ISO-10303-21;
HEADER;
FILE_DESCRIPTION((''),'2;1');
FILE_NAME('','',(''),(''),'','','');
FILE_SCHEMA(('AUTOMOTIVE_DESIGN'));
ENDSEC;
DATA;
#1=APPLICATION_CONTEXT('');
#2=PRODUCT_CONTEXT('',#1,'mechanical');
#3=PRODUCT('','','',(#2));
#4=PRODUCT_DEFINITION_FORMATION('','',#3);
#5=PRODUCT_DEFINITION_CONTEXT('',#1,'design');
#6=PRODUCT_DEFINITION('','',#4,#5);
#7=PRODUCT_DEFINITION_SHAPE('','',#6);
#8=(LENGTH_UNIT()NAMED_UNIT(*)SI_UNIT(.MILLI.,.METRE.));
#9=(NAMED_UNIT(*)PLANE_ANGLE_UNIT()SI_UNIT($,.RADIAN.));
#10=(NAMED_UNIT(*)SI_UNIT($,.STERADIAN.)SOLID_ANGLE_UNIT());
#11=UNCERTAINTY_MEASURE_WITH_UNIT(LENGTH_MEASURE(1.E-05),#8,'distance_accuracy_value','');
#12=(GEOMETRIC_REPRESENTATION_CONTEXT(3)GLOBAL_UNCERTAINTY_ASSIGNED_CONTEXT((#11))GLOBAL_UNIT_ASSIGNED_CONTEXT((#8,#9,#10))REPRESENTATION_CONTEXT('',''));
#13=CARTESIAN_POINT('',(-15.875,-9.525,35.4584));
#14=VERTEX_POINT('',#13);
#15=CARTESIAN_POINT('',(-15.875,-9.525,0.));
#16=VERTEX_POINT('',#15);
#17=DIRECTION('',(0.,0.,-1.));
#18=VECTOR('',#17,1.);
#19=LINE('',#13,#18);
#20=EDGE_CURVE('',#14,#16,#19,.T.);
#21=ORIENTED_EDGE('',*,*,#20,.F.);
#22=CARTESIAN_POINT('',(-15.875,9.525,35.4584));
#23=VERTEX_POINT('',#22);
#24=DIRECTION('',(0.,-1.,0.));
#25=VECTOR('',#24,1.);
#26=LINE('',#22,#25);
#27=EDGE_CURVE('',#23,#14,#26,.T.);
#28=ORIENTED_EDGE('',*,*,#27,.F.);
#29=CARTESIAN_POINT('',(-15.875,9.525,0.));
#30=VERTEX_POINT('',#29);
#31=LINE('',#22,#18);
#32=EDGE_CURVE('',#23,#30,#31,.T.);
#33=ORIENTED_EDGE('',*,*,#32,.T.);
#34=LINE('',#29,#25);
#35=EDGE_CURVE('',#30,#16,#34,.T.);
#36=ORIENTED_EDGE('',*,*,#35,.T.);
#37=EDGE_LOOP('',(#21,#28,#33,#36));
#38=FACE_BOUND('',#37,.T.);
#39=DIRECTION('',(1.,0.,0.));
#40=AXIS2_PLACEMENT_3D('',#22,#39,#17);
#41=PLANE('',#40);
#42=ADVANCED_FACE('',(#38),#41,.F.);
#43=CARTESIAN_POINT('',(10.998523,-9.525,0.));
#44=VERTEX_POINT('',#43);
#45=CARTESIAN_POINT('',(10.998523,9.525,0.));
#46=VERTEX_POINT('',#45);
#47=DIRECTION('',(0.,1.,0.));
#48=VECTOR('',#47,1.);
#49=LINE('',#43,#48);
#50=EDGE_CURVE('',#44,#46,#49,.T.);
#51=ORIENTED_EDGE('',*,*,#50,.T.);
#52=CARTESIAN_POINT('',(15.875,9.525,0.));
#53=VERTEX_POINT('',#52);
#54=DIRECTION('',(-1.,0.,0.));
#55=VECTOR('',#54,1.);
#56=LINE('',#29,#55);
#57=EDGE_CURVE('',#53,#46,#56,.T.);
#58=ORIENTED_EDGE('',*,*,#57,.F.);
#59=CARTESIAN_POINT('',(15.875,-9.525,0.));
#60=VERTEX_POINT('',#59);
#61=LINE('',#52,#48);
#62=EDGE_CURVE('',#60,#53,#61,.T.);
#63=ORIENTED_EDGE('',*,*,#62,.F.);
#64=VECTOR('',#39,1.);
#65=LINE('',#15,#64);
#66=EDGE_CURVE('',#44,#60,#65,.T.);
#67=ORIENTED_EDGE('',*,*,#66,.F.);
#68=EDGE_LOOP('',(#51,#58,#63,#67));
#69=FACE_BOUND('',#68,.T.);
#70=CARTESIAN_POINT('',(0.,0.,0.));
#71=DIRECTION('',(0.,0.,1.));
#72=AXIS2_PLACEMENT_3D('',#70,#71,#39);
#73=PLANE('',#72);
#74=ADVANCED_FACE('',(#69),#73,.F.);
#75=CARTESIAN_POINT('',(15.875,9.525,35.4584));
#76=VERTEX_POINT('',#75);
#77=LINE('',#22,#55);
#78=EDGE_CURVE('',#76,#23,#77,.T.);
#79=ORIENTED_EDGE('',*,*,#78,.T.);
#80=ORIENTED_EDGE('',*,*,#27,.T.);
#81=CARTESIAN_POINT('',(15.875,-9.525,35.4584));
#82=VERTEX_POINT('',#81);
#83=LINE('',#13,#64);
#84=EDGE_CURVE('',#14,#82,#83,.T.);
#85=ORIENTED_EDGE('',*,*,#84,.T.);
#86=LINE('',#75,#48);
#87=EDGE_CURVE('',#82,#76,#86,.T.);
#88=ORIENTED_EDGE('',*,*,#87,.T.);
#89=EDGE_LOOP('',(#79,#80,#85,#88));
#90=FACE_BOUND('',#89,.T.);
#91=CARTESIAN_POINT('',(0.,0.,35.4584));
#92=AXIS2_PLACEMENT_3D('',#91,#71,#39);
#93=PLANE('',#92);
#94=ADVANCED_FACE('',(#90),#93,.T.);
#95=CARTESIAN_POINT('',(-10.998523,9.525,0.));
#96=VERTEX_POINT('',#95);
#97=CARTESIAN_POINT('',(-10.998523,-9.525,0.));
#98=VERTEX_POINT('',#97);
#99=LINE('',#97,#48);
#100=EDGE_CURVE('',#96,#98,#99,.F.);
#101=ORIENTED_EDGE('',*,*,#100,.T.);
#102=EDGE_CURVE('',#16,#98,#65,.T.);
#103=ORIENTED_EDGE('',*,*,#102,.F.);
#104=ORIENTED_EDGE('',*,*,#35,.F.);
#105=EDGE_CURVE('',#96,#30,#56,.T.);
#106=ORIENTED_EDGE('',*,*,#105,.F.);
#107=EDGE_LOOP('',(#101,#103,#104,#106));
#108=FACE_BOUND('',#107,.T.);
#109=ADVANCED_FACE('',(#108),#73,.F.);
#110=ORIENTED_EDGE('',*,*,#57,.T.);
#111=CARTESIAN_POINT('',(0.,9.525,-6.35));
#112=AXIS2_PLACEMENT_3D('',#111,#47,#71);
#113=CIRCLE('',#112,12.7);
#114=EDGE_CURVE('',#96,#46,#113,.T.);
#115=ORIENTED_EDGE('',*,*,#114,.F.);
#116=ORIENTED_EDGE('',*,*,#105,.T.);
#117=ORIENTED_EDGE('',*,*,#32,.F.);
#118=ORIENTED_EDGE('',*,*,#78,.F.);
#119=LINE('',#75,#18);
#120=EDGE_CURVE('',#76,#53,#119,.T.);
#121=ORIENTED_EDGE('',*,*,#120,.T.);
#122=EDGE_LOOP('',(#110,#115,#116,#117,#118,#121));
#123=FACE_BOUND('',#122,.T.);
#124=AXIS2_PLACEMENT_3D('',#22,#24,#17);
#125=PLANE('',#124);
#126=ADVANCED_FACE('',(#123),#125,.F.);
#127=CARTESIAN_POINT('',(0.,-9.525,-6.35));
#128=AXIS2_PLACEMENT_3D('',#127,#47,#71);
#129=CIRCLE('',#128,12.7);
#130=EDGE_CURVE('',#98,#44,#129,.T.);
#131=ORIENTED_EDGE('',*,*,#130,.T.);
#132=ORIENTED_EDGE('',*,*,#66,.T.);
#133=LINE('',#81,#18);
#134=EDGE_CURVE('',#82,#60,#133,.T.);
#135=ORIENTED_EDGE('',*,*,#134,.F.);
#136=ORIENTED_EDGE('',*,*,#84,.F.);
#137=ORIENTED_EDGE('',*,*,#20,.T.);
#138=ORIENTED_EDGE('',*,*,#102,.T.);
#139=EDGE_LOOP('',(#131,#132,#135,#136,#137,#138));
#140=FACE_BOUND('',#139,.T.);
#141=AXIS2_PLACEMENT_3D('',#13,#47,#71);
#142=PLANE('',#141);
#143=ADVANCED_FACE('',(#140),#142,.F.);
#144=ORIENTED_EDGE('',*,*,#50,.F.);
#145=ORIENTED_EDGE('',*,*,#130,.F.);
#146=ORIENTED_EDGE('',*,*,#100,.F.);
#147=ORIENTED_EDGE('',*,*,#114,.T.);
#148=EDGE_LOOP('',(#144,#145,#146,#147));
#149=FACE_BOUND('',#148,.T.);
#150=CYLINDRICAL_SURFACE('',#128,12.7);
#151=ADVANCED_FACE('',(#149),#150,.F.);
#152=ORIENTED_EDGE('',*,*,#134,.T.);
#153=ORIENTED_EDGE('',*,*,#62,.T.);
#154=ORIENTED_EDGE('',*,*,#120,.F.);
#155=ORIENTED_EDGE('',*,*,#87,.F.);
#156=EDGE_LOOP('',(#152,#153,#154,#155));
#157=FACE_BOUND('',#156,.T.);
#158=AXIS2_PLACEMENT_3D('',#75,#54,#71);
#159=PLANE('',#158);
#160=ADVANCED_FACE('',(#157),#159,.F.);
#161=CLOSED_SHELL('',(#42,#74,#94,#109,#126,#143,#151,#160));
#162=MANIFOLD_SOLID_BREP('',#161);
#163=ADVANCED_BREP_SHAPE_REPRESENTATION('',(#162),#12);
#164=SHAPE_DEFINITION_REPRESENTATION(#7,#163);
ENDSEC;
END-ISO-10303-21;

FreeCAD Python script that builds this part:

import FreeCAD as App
import Part
import Sketcher

V = App.Vector
Q = App.Units.Quantity


def add_polygon(sketch, points):
    """Adds a closed chain of lines whose ends are joined by coincident constraints."""
    first, n = sketch.GeometryCount, len(points)
    for a, b in zip(points, points[1:] + points[:1]):
        sketch.addGeometry(Part.LineSegment(App.Vector(*a, 0), App.Vector(*b, 0)), False)
    for i in range(n):
        sketch.addConstraint(Sketcher.Constraint("Coincident", first + i, 2, first + (i + 1) % n, 1))

doc = App.newDocument("Part")
body = doc.addObject("PartDesign::Body", "Body")

# Sketch on XY plane
sketch1 = doc.addObject("Sketcher::SketchObject", "Sketch")
body.addObject(sketch1)
sketch1.AttachmentSupport = (doc.XY_Plane, [""])
sketch1.MapMode = "FlatFace"
add_polygon(sketch1, [(-16, 10), (-16, -10), (16, -10), (16, 10)])  # lines 0-3
sketch1.addConstraint(Sketcher.Constraint("Vertical", 0))
sketch1.addConstraint(Sketcher.Constraint("Horizontal", 1))
sketch1.addConstraint(Sketcher.Constraint("Vertical", 2))
sketch1.addConstraint(Sketcher.Constraint("Horizontal", 3))
sketch1.addConstraint(Sketcher.Constraint("Symmetric", 0, 2, 2, 2, -1, 1))
sketch1.addConstraint(Sketcher.Constraint("DistanceX", 1, 1, 1, 2, Q("1.25 in")))
sketch1.addConstraint(Sketcher.Constraint("DistanceY", 0, 2, 0, 1, Q("0.75 in")))
pad1 = doc.addObject("PartDesign::Pad", "Pad")
body.addObject(pad1)
pad1.Profile = sketch1
pad1.Length = Q("1.396 in")

# Sketch on XZ plane
sketch2 = doc.addObject("Sketcher::SketchObject", "Sketch001")
body.addObject(sketch2)
sketch2.AttachmentSupport = (doc.XZ_Plane, [""])
sketch2.MapMode = "FlatFace"
sketch2.AttachmentOffset = App.Placement(V(0, 0, -0.375 * 25.4), App.Rotation())
sketch2.addGeometry(Part.Circle(V(0, -6, 0), V(0, 0, 1), 13), False)
sketch2.addConstraint(Sketcher.Constraint("PointOnObject", 0, 3, -2))
sketch2.addConstraint(Sketcher.Constraint("Diameter", 0, Q("1 in")))
sketch2.addConstraint(Sketcher.Constraint("DistanceY", 0, 3, -1, 1, Q("0.25 in")))
pocket1 = doc.addObject("PartDesign::Pocket", "Pocket")
body.addObject(pocket1)
pocket1.Profile = sketch2
pocket1.Type = "ThroughAll"
pocket1.Reversed = True

doc.recompute()
